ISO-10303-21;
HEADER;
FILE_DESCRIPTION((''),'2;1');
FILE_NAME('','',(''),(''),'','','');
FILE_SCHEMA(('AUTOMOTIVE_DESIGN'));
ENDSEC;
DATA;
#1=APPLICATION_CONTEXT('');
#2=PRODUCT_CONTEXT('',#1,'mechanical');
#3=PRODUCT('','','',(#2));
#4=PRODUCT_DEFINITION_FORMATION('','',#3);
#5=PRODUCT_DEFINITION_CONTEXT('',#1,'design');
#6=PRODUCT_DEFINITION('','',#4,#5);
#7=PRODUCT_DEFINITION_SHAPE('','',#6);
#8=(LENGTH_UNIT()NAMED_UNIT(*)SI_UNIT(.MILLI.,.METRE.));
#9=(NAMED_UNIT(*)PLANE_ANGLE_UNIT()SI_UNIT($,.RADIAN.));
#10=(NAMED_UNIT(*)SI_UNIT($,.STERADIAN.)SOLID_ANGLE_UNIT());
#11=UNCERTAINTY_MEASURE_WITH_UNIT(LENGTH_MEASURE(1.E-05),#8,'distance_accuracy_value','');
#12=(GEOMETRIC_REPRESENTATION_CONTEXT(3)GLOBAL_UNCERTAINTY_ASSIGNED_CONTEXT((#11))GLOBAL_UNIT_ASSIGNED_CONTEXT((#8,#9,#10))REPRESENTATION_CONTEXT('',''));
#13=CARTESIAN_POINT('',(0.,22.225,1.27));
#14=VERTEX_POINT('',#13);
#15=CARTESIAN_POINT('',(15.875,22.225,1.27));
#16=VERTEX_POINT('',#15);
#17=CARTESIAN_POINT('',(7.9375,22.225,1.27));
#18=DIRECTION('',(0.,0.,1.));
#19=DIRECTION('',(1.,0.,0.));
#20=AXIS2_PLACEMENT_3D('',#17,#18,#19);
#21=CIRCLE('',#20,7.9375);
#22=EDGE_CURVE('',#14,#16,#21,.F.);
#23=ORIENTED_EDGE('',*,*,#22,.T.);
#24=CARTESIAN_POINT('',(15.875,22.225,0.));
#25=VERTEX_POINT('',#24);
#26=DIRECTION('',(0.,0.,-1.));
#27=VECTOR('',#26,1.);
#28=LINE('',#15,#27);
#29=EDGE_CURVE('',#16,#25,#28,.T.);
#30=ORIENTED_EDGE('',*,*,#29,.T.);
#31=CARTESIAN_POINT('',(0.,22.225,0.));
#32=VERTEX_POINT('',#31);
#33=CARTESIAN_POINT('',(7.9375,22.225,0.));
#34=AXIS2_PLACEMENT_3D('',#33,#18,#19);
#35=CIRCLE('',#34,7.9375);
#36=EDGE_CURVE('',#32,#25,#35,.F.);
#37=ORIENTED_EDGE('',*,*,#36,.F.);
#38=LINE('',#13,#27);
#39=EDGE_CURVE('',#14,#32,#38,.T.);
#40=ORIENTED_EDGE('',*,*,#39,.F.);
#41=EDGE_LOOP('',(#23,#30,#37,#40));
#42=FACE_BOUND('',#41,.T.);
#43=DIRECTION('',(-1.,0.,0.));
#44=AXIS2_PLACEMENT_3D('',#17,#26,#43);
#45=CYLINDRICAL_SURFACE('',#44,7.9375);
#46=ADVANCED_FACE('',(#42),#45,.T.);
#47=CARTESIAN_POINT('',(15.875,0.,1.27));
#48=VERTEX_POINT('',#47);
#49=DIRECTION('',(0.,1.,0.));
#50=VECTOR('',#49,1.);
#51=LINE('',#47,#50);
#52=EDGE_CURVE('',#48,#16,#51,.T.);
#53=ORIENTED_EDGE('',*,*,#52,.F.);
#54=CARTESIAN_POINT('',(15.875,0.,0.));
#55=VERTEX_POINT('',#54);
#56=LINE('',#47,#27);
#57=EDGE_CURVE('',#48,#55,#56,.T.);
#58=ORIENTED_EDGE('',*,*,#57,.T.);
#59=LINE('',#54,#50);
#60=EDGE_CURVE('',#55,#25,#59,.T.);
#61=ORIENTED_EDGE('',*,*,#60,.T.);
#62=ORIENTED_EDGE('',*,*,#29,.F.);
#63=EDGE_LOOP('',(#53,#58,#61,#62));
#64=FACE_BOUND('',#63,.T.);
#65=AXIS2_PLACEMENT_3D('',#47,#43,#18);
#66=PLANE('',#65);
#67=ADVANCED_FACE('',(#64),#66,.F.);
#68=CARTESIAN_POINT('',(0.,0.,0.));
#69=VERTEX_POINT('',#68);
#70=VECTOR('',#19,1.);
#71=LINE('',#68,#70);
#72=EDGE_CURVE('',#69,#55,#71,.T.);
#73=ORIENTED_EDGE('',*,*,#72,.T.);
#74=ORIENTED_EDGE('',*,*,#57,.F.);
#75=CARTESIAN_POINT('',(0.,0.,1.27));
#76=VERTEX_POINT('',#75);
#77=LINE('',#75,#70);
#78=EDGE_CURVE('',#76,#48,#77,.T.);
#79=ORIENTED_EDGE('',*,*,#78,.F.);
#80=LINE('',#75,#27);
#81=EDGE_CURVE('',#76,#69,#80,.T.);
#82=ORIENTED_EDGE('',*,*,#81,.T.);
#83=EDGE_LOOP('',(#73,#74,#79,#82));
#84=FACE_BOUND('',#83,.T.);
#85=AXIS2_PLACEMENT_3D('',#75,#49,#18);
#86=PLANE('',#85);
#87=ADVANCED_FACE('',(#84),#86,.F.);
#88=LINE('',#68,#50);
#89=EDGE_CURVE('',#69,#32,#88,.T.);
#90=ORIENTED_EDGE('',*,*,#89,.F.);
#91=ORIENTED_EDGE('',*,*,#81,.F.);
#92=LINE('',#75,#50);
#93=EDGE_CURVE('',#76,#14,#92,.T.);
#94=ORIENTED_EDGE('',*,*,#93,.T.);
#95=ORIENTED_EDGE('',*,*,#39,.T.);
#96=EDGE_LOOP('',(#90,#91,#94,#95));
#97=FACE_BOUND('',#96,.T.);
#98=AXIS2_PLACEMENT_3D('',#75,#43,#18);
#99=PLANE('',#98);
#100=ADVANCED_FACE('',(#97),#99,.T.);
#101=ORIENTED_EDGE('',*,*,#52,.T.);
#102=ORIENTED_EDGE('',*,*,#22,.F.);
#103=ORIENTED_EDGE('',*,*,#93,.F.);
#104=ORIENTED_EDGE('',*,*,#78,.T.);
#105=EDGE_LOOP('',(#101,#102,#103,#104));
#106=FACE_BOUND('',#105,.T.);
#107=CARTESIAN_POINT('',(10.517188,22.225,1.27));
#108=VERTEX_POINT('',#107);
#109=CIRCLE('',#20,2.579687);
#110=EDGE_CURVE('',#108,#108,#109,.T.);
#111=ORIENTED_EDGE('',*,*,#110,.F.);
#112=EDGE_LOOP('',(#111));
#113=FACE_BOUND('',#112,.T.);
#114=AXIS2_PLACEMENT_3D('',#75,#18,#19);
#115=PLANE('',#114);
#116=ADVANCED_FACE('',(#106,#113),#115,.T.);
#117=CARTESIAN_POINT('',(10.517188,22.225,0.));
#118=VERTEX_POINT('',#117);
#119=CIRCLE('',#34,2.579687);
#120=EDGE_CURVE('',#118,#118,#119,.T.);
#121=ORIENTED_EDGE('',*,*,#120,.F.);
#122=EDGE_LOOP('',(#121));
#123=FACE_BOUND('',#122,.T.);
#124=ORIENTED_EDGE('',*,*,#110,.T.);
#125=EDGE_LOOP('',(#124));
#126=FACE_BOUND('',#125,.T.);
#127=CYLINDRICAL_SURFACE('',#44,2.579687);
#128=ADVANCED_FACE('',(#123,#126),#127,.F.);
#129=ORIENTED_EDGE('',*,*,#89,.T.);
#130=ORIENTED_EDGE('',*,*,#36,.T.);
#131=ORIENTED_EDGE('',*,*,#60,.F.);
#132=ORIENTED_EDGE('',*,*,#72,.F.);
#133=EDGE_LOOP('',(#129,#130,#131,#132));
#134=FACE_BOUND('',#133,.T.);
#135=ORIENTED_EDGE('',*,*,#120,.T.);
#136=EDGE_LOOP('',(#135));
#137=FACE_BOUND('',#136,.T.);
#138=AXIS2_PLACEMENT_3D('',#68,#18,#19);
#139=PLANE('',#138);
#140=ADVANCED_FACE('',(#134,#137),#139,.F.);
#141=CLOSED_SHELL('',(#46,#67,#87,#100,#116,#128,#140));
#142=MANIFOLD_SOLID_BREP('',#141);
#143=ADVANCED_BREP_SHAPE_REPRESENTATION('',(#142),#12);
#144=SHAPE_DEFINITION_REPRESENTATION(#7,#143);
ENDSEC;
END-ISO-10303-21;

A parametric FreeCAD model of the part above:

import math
import FreeCAD as App
import Part
import Sketcher

V = App.Vector
Q = App.Units.Quantity

doc = App.newDocument("Part")
params = doc.addObject("Spreadsheet::Sheet", "Params")
for row, (alias, value) in enumerate([
    ("sketch1_diameter", "0.203125 in"),
    ("sketch1_radius", "0.3125 in"),
    ("sketch1_height", "0.875 in"),
    ("pad1_length", "0.05 in"),
], start=1):
    params.set(f"A{row}", alias)
    params.set(f"B{row}", "=" + value)
    params.setAlias(f"B{row}", alias)

body = doc.addObject("PartDesign::Body", "Body")

sketch1 = doc.addObject("Sketcher::SketchObject", "Sketch")
body.addObject(sketch1)
sketch1.AttachmentSupport = (doc.XY_Plane, [""])
sketch1.MapMode = "FlatFace"
sketch1.addGeometry([
    Part.ArcOfCircle(Part.Circle(V(7.9, 22.2, 0), V(0, 0, 1), 7.9), math.radians(0), math.radians(180)),
    Part.LineSegment(V(0, 22.2, 0), V(0, 0, 0)),
    Part.LineSegment(V(0, 0, 0), V(15.9, 0, 0)),
    Part.LineSegment(V(15.9, 0, 0), V(15.9, 22.2, 0)),
    Part.Circle(V(7.9, 22.2, 0), V(0, 0, 1), 2.6),
], False)
sketch1.addConstraint([
    Sketcher.Constraint("Tangent", 0, 2, 1, 1),
    Sketcher.Constraint("Coincident", 1, 2, 2, 1),
    Sketcher.Constraint("Coincident", 2, 2, 3, 1),
    Sketcher.Constraint("Tangent", 3, 2, 0, 1),
    Sketcher.Constraint("Vertical", 1),
    Sketcher.Constraint("Horizontal", 2),
    Sketcher.Constraint("Vertical", 3),
    Sketcher.Constraint("Coincident", 1, 2, -1, 1),
    Sketcher.Constraint("Coincident", 4, 3, 0, 3),
    Sketcher.Constraint("Diameter", 4, Q("0.203125 in")),
    Sketcher.Constraint("Radius", 0, Q("0.3125 in")),
    Sketcher.Constraint("DistanceY", 1, 2, 1, 1, Q("0.875 in")),
])
sketch1.setExpression("Constraints[9]", "Params.sketch1_diameter")
sketch1.setExpression("Constraints[10]", "Params.sketch1_radius")
sketch1.setExpression("Constraints[11]", "Params.sketch1_height")
pad1 = doc.addObject("PartDesign::Pad", "Pad")
body.addObject(pad1)
pad1.Profile = sketch1
pad1.setExpression("Length", "Params.pad1_length")

doc.recompute()
